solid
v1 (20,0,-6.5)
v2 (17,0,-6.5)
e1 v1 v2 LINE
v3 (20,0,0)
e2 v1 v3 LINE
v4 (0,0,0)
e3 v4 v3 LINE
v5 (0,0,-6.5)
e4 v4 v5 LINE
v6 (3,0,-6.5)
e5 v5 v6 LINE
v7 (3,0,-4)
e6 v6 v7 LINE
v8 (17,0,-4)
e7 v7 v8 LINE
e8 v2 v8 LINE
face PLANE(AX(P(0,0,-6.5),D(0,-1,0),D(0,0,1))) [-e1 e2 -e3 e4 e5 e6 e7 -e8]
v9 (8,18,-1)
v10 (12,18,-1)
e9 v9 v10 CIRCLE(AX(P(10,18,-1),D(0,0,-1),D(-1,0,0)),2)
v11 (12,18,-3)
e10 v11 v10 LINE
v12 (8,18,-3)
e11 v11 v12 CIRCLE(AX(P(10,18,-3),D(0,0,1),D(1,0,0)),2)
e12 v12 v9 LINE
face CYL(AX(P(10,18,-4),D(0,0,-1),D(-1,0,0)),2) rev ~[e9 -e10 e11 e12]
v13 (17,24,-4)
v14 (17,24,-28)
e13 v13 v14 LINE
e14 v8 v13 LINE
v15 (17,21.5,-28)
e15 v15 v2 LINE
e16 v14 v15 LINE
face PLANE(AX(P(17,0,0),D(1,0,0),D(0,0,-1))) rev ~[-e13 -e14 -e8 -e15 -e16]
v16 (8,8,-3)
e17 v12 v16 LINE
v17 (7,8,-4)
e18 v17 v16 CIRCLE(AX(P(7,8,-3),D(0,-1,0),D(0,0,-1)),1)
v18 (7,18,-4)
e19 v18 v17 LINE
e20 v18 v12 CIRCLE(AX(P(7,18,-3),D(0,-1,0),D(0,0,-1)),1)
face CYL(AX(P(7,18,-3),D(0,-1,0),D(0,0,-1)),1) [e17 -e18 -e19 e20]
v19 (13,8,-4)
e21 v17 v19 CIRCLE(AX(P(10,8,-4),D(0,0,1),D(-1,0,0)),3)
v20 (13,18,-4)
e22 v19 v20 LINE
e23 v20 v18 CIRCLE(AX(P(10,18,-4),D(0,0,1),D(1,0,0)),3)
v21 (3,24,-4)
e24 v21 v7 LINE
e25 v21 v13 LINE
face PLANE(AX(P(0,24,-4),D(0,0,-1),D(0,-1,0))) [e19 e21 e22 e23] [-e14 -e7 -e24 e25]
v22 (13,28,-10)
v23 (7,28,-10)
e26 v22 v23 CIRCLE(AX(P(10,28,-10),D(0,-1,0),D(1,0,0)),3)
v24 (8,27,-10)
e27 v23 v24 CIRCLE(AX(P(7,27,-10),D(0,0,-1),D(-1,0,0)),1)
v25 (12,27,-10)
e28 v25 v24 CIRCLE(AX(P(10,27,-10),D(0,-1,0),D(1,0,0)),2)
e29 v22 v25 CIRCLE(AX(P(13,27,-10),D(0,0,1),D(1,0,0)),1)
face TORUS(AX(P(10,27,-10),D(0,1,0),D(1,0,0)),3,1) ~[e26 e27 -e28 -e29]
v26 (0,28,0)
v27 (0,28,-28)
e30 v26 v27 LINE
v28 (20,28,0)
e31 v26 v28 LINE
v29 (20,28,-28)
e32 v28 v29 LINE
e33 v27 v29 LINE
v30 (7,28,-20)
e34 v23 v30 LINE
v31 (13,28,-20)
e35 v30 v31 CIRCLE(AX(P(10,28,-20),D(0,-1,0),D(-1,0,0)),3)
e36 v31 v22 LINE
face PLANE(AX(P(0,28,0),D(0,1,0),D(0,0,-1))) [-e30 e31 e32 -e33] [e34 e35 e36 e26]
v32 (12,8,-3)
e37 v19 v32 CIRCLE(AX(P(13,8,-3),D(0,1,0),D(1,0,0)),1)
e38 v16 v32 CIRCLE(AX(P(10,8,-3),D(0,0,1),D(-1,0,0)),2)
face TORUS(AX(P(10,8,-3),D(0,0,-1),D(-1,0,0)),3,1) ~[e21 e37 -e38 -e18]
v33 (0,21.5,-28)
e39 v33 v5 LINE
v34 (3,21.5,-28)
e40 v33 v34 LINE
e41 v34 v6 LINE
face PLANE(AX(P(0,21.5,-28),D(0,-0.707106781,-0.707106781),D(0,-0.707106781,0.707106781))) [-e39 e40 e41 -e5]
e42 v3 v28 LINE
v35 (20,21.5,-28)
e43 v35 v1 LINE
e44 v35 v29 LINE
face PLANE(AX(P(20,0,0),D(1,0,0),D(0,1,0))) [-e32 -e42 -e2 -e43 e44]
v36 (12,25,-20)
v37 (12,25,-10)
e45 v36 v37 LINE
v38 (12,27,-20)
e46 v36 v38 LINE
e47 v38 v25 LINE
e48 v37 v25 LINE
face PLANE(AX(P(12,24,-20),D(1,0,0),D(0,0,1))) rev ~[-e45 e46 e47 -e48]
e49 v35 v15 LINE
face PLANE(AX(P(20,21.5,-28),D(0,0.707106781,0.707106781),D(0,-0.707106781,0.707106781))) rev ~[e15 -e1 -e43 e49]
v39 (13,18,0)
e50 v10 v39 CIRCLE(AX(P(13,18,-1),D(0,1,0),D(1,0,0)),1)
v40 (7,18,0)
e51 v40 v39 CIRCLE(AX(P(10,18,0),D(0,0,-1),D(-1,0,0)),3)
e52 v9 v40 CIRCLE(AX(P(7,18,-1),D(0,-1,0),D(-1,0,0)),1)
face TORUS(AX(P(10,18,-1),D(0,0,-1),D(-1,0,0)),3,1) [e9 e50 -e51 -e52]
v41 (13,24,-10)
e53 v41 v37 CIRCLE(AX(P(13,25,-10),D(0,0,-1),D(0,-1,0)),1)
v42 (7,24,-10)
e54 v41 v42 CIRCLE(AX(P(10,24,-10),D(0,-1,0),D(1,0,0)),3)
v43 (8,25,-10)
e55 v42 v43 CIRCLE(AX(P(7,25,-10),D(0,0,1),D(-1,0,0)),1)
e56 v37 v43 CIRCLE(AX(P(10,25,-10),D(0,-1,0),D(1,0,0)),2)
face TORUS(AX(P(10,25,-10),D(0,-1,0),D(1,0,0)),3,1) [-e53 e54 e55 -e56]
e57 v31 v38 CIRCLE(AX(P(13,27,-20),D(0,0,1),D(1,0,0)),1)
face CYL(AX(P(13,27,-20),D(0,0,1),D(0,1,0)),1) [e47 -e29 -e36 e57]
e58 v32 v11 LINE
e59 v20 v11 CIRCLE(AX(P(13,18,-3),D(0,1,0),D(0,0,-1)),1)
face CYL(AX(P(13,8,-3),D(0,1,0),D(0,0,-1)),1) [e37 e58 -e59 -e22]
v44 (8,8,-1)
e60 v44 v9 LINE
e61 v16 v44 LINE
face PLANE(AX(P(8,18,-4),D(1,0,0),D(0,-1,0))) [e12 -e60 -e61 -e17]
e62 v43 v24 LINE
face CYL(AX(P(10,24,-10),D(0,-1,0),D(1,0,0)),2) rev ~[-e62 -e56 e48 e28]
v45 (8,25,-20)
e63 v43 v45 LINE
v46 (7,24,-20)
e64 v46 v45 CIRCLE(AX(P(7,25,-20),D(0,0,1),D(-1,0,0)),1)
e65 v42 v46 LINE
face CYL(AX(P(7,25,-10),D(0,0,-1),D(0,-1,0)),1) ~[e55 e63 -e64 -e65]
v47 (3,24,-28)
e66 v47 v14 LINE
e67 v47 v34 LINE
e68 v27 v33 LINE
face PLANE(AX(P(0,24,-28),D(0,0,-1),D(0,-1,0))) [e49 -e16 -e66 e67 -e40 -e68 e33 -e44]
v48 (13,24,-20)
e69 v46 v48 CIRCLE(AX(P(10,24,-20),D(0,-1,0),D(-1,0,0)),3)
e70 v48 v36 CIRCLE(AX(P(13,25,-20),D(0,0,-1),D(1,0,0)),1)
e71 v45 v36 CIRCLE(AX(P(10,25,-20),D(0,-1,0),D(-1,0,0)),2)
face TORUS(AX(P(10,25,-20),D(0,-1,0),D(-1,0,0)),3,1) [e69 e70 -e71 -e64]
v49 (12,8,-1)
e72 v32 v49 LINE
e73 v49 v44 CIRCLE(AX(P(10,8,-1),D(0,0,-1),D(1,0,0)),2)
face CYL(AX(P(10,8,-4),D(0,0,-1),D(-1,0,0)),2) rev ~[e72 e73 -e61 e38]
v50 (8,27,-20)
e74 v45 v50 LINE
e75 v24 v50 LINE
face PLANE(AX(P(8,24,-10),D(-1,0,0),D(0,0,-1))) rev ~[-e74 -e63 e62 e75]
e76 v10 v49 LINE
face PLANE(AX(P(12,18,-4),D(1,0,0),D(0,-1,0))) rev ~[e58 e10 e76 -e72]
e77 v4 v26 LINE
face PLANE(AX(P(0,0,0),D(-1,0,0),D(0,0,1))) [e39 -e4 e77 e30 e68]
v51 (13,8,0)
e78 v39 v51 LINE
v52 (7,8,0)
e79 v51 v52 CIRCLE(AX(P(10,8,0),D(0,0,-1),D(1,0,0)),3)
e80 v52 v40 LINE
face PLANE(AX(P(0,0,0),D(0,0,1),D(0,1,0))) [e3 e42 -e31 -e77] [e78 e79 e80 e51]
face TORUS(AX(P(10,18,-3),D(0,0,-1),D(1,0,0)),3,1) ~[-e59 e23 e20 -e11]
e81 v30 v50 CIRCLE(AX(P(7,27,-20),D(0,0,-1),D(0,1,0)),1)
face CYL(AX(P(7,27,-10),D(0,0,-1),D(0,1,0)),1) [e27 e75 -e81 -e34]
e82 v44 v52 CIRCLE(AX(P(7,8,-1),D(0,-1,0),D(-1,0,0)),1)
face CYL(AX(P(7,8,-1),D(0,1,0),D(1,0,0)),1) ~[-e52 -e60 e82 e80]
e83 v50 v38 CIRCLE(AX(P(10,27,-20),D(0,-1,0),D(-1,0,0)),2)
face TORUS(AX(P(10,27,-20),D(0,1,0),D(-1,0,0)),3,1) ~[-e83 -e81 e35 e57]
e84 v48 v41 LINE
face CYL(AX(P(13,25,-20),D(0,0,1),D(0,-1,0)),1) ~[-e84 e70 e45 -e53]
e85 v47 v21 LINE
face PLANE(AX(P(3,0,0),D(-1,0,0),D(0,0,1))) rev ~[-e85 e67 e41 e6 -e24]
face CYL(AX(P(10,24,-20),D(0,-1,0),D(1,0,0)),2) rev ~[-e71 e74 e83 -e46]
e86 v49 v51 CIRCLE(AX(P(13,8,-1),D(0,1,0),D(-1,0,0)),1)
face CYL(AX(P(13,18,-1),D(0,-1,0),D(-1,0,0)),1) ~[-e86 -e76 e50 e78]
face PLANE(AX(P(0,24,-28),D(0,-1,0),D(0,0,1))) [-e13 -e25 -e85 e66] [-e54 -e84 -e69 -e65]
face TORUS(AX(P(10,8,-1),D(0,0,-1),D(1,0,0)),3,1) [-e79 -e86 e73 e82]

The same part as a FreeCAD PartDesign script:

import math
import FreeCAD as App
import Part
import Sketcher
from FreeCAD import Vector


def edges_at(feature, points):
    """Names of the edges that pass closest to the given points."""
    edges = feature.Shape.Edges
    near = lambda p: min(range(len(edges)), key=lambda i: edges[i].distToShape(Part.Vertex(*p))[0])
    return sorted({f"Edge{near(p) + 1}" for p in points})


def add_polygon(sketch, points):
    """Adds a closed chain of lines whose ends are joined by coincident constraints."""
    first, n = sketch.GeometryCount, len(points)
    for a, b in zip(points, points[1:] + points[:1]):
        sketch.addGeometry(Part.LineSegment(App.Vector(*a, 0), App.Vector(*b, 0)), False)
    for i in range(n):
        sketch.addConstraint(Sketcher.Constraint("Coincident", first + i, 2, first + (i + 1) % n, 1))

doc = App.newDocument("Part")
body = doc.addObject("PartDesign::Body", "Body")

sketch1 = body.newObject("Sketcher::SketchObject", "Sketch")
sketch1.AttachmentSupport = (doc.getObject("YZ_Plane"), [""])
sketch1.MapMode = "FlatFace"
add_polygon(sketch1, [(28, 0), (0, 0), (0, -4), (24, -4), (24, -28), (28, -28)])
sketch1.addConstraint([
    Sketcher.Constraint("Horizontal", 0),
    Sketcher.Constraint("Vertical", 1),
    Sketcher.Constraint("Horizontal", 2),
    Sketcher.Constraint("Vertical", 3),
    Sketcher.Constraint("Horizontal", 4),
    Sketcher.Constraint("Vertical", 5),
    Sketcher.Constraint("Coincident", 0, 2, -1, 1),
    Sketcher.Constraint("Equal", 4, 1),
    Sketcher.Constraint("Equal", 2, 3),
    Sketcher.Constraint("DistanceX", 0, 2, 0, 1, 28.0),
    Sketcher.Constraint("DistanceX", 4, 1, 4, 2, 4.0),
])
pad1 = body.newObject("PartDesign::Pad", "Pad")
pad1.Profile = sketch1
pad1.Length = 20

sketch2 = body.newObject("Sketcher::SketchObject", "Sketch001")
sketch2.AttachmentSupport = (doc.getObject("YZ_Plane"), [""])
sketch2.MapMode = "FlatFace"
sketch2.AttachmentOffset = App.Placement(Vector(0, 0, 20), App.Rotation())
add_polygon(sketch2, [(24, -28), (24, -4), (0, -4), (0, -6.5), (21.5, -28)])
sketch2.addConstraint([
    Sketcher.Constraint("Vertical", 0),
    Sketcher.Constraint("Horizontal", 1),
    Sketcher.Constraint("Vertical", 2),
    Sketcher.Constraint("Horizontal", 4),
    Sketcher.Constraint("PointOnObject", 1, 2, -2),
    Sketcher.Constraint("Equal", 1, 0),
    Sketcher.Constraint("Equal", 4, 2),
    Sketcher.Constraint("DistanceX", 4, 1, 4, 2, 2.5),
    Sketcher.Constraint("DistanceX", 1, 2, 1, 1, 24.0),
    Sketcher.Constraint("DistanceY", 0, 2, -1, 1, 4.0),
])
pad2 = body.newObject("PartDesign::Pad", "Pad001")
pad2.Profile = sketch2
pad2.Length = 3
pad2.Reversed = True

sketch3 = body.newObject("Sketcher::SketchObject", "Sketch002")
sketch3.AttachmentSupport = (doc.getObject("YZ_Plane"), [""])
sketch3.MapMode = "FlatFace"
add_polygon(sketch3, [(24, -4), (24, -28), (21.5, -28), (0, -6.5), (0, -4)])
sketch3.addConstraint([
    Sketcher.Constraint("Vertical", 0),
    Sketcher.Constraint("Horizontal", 1),
    Sketcher.Constraint("Vertical", 3),
    Sketcher.Constraint("Horizontal", 4),
    Sketcher.Constraint("PointOnObject", 2, 2, -2),
    Sketcher.Constraint("Equal", 4, 0),
    Sketcher.Constraint("Equal", 1, 3),
    Sketcher.Constraint("DistanceX", 4, 1, 4, 2, 24.0),
    Sketcher.Constraint("DistanceX", 1, 2, 1, 1, 2.5),
    Sketcher.Constraint("DistanceY", 0, 2, -1, 1, 28.0),
])
pad3 = body.newObject("PartDesign::Pad", "Pad002")
pad3.Profile = sketch3
pad3.Length = 3

sketch4 = body.newObject("Sketcher::SketchObject", "Sketch003")
sketch4.AttachmentSupport = (doc.getObject("XZ_Plane"), [""])
sketch4.MapMode = "FlatFace"
sketch4.AttachmentOffset = App.Placement(Vector(0, 0, -24), App.Rotation())
sketch4.addGeometry([
    Part.ArcOfCircle(Part.Circle(Vector(10, -10, 0), Vector(0, 0, 1), 2), math.radians(0), math.radians(180)),
    Part.LineSegment(Vector(8, -10, 0), Vector(8, -20, 0)),
    Part.ArcOfCircle(Part.Circle(Vector(10, -20, 0), Vector(0, 0, 1), 2), math.radians(180), math.radians(360)),
    Part.LineSegment(Vector(12, -20, 0), Vector(12, -10, 0)),
], False)
sketch4.addConstraint([
    Sketcher.Constraint("Tangent", 0, 2, 1, 1),
    Sketcher.Constraint("Tangent", 1, 2, 2, 1),
    Sketcher.Constraint("Tangent", 2, 2, 3, 1),
    Sketcher.Constraint("Tangent", 3, 2, 0, 1),
    Sketcher.Constraint("Vertical", 1),
    Sketcher.Constraint("Vertical", 3),
    Sketcher.Constraint("Radius", 0, 2.0),
    Sketcher.Constraint("DistanceY", 1, 2, 1, 1, 10.0),
    Sketcher.Constraint("DistanceX", -1, 1, 0, 3, 10.0),
    Sketcher.Constraint("DistanceY", 0, 3, -1, 1, 10.0),
])
pocket1 = body.newObject("PartDesign::Pocket", "Pocket")
pocket1.Profile = sketch4
pocket1.Type = "ThroughAll"
doc.recompute()

fillet = body.newObject("PartDesign::Fillet", "Fillet")
fillet.Base = (pocket1, edges_at(pocket1, [
    (10, 24, -22),
    (8, 24, -15),
    (10, 24, -8),
    (12, 24, -15),
    (10, 28, -8),
    (8, 28, -15),
    (10, 28, -22),
    (12, 28, -15),
]))
fillet.Radius = 1

sketch5 = body.newObject("Sketcher::SketchObject", "Sketch004")
sketch5.AttachmentSupport = (doc.getObject("XY_Plane"), [""])
sketch5.MapMode = "FlatFace"
sketch5.AttachmentOffset = App.Placement(Vector(0, 0, -4), App.Rotation())
sketch5.addGeometry([
    Part.ArcOfCircle(Part.Circle(Vector(10, 8, 0), Vector(0, 0, 1), 2), math.radians(180), math.radians(360)),
    Part.LineSegment(Vector(8, 8, 0), Vector(8, 18, 0)),
    Part.ArcOfCircle(Part.Circle(Vector(10, 18, 0), Vector(0, 0, 1), 2), math.radians(0), math.radians(180)),
    Part.LineSegment(Vector(12, 18, 0), Vector(12, 8, 0)),
], False)
sketch5.addConstraint([
    Sketcher.Constraint("Tangent", 0, 1, 1, 1),
    Sketcher.Constraint("Tangent", 1, 2, 2, 2),
    Sketcher.Constraint("Tangent", 2, 1, 3, 1),
    Sketcher.Constraint("Tangent", 3, 2, 0, 2),
    Sketcher.Constraint("Vertical", 1),
    Sketcher.Constraint("Vertical", 3),
    Sketcher.Constraint("Radius", 0, 2.0),
    Sketcher.Constraint("DistanceY", 1, 1, 1, 2, 10.0),
    Sketcher.Constraint("DistanceX", -1, 1, 0, 3, 10.0),
    Sketcher.Constraint("DistanceY", -1, 1, 0, 3, 8.0),
])
pocket2 = body.newObject("PartDesign::Pocket", "Pocket001")
pocket2.Profile = sketch5
pocket2.Type = "ThroughAll"
pocket2.Reversed = True
doc.recompute()

fillet2 = body.newObject("PartDesign::Fillet", "Fillet001")
fillet2.Base = (pocket2, edges_at(pocket2, [
    (8, 13, -4),
    (10, 6, -4),
    (12, 13, -4),
    (10, 20, -4),
    (10, 20, 0),
    (12, 13, 0),
    (10, 6, 0),
    (8, 13, 0),
]))
fillet2.Radius = 1

doc.recompute()
